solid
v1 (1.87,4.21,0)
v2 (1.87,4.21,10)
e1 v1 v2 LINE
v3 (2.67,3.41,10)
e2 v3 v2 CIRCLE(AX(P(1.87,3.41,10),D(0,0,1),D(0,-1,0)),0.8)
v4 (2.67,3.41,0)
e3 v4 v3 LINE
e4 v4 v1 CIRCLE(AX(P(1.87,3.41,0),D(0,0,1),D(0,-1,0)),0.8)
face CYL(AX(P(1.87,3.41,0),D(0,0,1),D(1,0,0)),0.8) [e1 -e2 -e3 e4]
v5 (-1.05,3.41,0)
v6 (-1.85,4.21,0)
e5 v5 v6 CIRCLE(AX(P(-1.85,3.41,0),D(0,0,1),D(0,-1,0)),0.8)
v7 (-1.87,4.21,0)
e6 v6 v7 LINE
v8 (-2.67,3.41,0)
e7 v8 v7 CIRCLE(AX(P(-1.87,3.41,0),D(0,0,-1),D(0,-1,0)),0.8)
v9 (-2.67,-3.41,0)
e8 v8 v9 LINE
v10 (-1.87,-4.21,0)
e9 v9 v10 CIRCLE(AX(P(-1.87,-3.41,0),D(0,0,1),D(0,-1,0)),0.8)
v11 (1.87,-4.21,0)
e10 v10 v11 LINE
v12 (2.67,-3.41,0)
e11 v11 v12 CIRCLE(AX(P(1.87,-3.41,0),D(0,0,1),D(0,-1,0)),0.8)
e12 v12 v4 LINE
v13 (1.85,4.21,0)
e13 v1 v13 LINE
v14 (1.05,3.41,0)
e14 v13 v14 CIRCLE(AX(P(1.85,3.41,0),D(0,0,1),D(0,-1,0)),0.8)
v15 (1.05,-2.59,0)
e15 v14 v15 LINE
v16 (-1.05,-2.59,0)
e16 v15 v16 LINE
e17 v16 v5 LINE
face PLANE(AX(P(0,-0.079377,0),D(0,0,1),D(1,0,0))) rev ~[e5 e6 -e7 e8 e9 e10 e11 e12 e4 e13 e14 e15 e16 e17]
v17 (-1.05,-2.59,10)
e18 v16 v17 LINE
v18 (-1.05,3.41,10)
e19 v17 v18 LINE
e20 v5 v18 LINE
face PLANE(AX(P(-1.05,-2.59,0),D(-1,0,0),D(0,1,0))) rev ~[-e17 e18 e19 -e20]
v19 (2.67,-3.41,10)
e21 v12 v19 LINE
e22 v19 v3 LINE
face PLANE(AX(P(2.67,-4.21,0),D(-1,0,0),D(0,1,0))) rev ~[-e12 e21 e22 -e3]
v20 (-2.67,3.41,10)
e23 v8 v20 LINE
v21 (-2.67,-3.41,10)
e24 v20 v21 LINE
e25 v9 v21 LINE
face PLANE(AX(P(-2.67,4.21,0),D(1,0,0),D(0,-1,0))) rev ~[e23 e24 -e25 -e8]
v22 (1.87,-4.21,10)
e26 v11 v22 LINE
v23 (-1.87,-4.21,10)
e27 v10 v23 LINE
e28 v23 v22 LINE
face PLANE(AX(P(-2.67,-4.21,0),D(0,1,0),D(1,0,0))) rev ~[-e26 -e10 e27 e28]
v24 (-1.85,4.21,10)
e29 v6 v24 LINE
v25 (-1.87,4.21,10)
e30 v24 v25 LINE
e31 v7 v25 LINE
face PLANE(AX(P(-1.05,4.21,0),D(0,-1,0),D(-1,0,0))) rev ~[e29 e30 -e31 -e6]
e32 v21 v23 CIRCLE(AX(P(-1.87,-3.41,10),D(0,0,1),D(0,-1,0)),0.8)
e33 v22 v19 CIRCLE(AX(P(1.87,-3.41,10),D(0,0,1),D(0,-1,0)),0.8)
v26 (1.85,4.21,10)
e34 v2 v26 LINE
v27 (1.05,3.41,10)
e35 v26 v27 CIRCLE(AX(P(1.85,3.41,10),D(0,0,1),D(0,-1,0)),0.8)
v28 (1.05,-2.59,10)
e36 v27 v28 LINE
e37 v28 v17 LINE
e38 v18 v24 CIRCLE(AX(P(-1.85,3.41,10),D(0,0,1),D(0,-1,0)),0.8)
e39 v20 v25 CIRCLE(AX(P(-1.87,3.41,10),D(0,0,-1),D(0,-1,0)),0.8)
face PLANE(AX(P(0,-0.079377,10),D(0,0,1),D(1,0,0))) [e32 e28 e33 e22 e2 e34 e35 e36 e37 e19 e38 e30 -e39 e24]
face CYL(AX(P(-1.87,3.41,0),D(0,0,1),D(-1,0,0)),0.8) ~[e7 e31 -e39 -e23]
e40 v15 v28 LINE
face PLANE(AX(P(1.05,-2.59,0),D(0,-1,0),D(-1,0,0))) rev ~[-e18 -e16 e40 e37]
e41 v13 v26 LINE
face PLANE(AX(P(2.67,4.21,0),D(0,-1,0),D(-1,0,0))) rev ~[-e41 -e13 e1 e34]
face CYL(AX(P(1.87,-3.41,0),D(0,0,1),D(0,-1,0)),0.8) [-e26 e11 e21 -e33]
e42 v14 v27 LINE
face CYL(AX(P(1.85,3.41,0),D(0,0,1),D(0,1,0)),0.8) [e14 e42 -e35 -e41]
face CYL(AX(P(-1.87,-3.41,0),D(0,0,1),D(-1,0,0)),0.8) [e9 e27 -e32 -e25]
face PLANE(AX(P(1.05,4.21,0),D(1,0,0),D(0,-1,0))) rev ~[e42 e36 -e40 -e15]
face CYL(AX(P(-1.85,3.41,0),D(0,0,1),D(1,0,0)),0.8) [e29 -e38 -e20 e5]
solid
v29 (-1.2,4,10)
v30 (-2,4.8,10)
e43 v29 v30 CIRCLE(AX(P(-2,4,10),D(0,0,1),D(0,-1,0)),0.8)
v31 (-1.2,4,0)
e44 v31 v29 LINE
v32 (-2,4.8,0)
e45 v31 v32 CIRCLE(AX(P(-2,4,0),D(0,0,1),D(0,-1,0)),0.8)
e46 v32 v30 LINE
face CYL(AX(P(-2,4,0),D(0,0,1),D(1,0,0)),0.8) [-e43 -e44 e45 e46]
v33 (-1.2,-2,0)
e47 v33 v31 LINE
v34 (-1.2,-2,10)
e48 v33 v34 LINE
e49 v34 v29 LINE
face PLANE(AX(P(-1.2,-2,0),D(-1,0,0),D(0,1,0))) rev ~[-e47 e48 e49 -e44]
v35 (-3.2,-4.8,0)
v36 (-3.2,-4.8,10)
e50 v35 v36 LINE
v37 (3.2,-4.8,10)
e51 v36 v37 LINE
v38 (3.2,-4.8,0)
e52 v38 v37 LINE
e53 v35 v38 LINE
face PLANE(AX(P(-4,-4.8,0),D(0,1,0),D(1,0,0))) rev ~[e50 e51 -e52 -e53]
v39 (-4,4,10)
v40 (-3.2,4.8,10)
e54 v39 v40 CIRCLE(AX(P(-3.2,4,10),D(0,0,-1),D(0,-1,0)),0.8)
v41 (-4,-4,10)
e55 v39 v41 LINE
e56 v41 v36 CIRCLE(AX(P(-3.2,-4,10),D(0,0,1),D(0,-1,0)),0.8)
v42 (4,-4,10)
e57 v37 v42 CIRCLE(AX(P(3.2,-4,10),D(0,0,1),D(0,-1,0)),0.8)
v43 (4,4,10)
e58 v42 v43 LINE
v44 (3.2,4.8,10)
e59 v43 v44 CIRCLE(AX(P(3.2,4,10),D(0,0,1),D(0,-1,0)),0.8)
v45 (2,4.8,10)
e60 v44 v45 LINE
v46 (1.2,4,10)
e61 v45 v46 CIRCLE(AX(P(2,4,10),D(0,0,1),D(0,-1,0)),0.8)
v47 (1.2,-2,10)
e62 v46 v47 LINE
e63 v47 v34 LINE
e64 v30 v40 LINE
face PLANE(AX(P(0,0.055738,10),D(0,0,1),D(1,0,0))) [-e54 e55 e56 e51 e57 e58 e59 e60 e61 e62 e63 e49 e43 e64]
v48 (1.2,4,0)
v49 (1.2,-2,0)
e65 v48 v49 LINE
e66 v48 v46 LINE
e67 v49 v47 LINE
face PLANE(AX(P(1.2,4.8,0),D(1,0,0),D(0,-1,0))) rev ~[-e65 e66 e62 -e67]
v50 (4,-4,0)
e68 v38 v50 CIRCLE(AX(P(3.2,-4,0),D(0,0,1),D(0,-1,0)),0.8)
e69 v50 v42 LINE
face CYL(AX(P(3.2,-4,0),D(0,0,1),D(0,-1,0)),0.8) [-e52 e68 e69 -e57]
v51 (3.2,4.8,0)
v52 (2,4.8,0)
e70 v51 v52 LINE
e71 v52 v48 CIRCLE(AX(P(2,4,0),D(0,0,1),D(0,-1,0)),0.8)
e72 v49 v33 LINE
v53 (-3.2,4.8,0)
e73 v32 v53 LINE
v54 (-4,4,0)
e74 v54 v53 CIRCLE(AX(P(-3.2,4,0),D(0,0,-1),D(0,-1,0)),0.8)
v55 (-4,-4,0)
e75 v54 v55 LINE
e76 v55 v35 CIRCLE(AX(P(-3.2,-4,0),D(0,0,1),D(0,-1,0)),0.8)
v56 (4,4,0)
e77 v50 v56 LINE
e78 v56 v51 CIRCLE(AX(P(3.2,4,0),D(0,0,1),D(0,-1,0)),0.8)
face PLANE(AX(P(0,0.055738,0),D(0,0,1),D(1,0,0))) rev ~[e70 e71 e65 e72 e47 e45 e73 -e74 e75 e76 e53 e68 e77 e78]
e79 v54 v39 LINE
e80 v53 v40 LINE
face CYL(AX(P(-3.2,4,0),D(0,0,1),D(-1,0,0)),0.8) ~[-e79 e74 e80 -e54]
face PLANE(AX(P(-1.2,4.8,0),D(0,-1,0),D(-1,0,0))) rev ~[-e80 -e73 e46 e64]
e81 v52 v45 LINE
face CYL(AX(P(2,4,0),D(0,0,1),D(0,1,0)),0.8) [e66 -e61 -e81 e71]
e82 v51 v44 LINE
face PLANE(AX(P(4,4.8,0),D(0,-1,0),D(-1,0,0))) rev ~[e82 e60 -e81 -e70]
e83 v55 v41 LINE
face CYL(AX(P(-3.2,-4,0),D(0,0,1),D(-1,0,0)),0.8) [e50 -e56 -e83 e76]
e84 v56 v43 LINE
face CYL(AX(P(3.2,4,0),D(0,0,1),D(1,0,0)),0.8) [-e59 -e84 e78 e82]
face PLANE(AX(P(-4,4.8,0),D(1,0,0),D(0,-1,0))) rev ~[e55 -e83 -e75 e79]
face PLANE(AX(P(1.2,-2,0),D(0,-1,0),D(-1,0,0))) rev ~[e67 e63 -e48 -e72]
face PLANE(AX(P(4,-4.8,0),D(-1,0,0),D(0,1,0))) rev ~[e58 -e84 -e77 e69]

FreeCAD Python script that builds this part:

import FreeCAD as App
import Part
import Sketcher
Q = App.Units.Quantity


def edges_at(feature, points):
    """Names of the edges that pass closest to the given points."""
    edges = feature.Shape.Edges
    near = lambda p: min(range(len(edges)), key=lambda i: edges[i].distToShape(Part.Vertex(*p))[0])
    return sorted({f"Edge{near(p) + 1}" for p in points})


def add_polygon(sketch, points):
    """Adds a closed chain of lines whose ends are joined by coincident constraints."""
    first, n = sketch.GeometryCount, len(points)
    for a, b in zip(points, points[1:] + points[:1]):
        sketch.addGeometry(Part.LineSegment(App.Vector(*a, 0), App.Vector(*b, 0)), False)
    for i in range(n):
        sketch.addConstraint(Sketcher.Constraint("Coincident", first + i, 2, first + (i + 1) % n, 1))

doc = App.newDocument("Part")
params = doc.addObject("Spreadsheet::Sheet", "Params")
for row, (alias, value) in enumerate([
    ("sketch1_width", "8 mm"),
    ("sketch1_width2", "2.8 mm"),
    ("sketch1_height", "9.6 mm"),
    ("sketch1_height2", "6.8 mm"),
    ("pad1_length", "10 mm"),
    ("fillet_radius", "0.8 mm"),
    ("sketch2_width", "2.1 mm"),
    ("sketch2_height", "6.8 mm"),
    ("sketch2_width2", "5.34 mm"),
    ("sketch2_height2", "8.42 mm"),
    ("pad2_length", "10 mm"),
    ("fillet2_radius", "0.8 mm"),
], start=1):
    params.set(f"A{row}", alias)
    params.set(f"B{row}", "=" + value)
    params.setAlias(f"B{row}", alias)

body = doc.addObject("PartDesign::Body", "Body")

# Sketch on XY plane
sketch1 = body.newObject("Sketcher::SketchObject", "Sketch")
sketch1.AttachmentSupport = (doc.getObject("XY_Plane"), [""])
sketch1.MapMode = "FlatFace"
add_polygon(sketch1, [(-4, 4.8), (-4, -4.8), (4, -4.8), (4, 4.8), (1.2, 4.8), (1.2, -2), (-1.2, -2), (-1.2, 4.8)])  # lines 0-7
sketch1.addConstraint(Sketcher.Constraint("Vertical", 0))
sketch1.addConstraint(Sketcher.Constraint("Horizontal", 1))
sketch1.addConstraint(Sketcher.Constraint("Vertical", 2))
sketch1.addConstraint(Sketcher.Constraint("Horizontal", 3))
sketch1.addConstraint(Sketcher.Constraint("Vertical", 4))
sketch1.addConstraint(Sketcher.Constraint("Horizontal", 5))
sketch1.addConstraint(Sketcher.Constraint("Vertical", 6))
sketch1.addConstraint(Sketcher.Constraint("Horizontal", 7))
sketch1.addConstraint(Sketcher.Constraint("Symmetric", 0, 2, 2, 2, -1, 1))
sketch1.addConstraint(Sketcher.Constraint("Symmetric", 3, 2, 6, 2, -2))
sketch1.addConstraint(Sketcher.Constraint("DistanceX", 1, 1, 1, 2, Q("8 mm")))
sketch1.addConstraint(Sketcher.Constraint("DistanceX", 3, 2, 3, 1, Q("2.8 mm")))
sketch1.addConstraint(Sketcher.Constraint("DistanceY", 0, 2, 0, 1, Q("9.6 mm")))
sketch1.addConstraint(Sketcher.Constraint("DistanceY", 4, 2, 4, 1, Q("6.8 mm")))
sketch1.setExpression("Constraints[18]", "Params.sketch1_width")
sketch1.setExpression("Constraints[19]", "Params.sketch1_width2")
sketch1.setExpression("Constraints[20]", "Params.sketch1_height")
sketch1.setExpression("Constraints[21]", "Params.sketch1_height2")
pad1 = body.newObject("PartDesign::Pad", "Pad")
pad1.Profile = sketch1
pad1.setExpression("Length", "Params.pad1_length")
doc.recompute()

fillet = body.newObject("PartDesign::Fillet", "Fillet")
fillet.Base = (pad1, edges_at(pad1, [
    (-4, -4.8, 5),
    (4, -4.8, 5),
    (4, 4.8, 5),
    (1.2, 4.8, 5),
    (-4, 4.8, 5),
    (-1.2, 4.8, 5),
]))
fillet.setExpression("Radius", "Params.fillet_radius")
body2 = doc.addObject("PartDesign::Body", "Body001")

# Sketch on XY plane
sketch2 = body2.newObject("Sketcher::SketchObject", "Sketch001")
sketch2.AttachmentSupport = (doc.getObject("XY_Plane001"), [""])
sketch2.MapMode = "FlatFace"
add_polygon(sketch2, [(-2.67, 4.21), (-2.67, -4.21), (2.67, -4.21), (2.67, 4.21), (1.05, 4.21), (1.05, -2.59), (-1.05, -2.59), (-1.05, 4.21)])  # lines 0-7
sketch2.addConstraint(Sketcher.Constraint("Vertical", 0))
sketch2.addConstraint(Sketcher.Constraint("Horizontal", 1))
sketch2.addConstraint(Sketcher.Constraint("Vertical", 2))
sketch2.addConstraint(Sketcher.Constraint("Horizontal", 3))
sketch2.addConstraint(Sketcher.Constraint("Vertical", 4))
sketch2.addConstraint(Sketcher.Constraint("Horizontal", 5))
sketch2.addConstraint(Sketcher.Constraint("Vertical", 6))
sketch2.addConstraint(Sketcher.Constraint("Horizontal", 7))
sketch2.addConstraint(Sketcher.Constraint("Symmetric", 0, 2, 2, 2, -1, 1))
sketch2.addConstraint(Sketcher.Constraint("Symmetric", 3, 2, 6, 2, -2))
sketch2.addConstraint(Sketcher.Constraint("DistanceX", 5, 2, 5, 1, Q("2.1 mm")))
sketch2.addConstraint(Sketcher.Constraint("DistanceY", 4, 2, 4, 1, Q("6.8 mm")))
sketch2.addConstraint(Sketcher.Constraint("DistanceX", 1, 1, 1, 2, Q("5.34 mm")))
sketch2.addConstraint(Sketcher.Constraint("DistanceY", 0, 2, 0, 1, Q("8.42 mm")))
sketch2.setExpression("Constraints[18]", "Params.sketch2_width")
sketch2.setExpression("Constraints[19]", "Params.sketch2_height")
sketch2.setExpression("Constraints[20]", "Params.sketch2_width2")
sketch2.setExpression("Constraints[21]", "Params.sketch2_height2")
pad2 = body2.newObject("PartDesign::Pad", "Pad001")
pad2.Profile = sketch2
pad2.setExpression("Length", "Params.pad2_length")
doc.recompute()

fillet2 = body2.newObject("PartDesign::Fillet", "Fillet001")
fillet2.Base = (pad2, edges_at(pad2, [
    (-2.67, -4.21, 5),
    (2.67, -4.21, 5),
    (2.67, 4.21, 5),
    (1.05, 4.21, 5),
    (-2.67, 4.21, 5),
    (-1.05, 4.21, 5),
]))
fillet2.setExpression("Radius", "Params.fillet2_radius")

doc.recompute()
